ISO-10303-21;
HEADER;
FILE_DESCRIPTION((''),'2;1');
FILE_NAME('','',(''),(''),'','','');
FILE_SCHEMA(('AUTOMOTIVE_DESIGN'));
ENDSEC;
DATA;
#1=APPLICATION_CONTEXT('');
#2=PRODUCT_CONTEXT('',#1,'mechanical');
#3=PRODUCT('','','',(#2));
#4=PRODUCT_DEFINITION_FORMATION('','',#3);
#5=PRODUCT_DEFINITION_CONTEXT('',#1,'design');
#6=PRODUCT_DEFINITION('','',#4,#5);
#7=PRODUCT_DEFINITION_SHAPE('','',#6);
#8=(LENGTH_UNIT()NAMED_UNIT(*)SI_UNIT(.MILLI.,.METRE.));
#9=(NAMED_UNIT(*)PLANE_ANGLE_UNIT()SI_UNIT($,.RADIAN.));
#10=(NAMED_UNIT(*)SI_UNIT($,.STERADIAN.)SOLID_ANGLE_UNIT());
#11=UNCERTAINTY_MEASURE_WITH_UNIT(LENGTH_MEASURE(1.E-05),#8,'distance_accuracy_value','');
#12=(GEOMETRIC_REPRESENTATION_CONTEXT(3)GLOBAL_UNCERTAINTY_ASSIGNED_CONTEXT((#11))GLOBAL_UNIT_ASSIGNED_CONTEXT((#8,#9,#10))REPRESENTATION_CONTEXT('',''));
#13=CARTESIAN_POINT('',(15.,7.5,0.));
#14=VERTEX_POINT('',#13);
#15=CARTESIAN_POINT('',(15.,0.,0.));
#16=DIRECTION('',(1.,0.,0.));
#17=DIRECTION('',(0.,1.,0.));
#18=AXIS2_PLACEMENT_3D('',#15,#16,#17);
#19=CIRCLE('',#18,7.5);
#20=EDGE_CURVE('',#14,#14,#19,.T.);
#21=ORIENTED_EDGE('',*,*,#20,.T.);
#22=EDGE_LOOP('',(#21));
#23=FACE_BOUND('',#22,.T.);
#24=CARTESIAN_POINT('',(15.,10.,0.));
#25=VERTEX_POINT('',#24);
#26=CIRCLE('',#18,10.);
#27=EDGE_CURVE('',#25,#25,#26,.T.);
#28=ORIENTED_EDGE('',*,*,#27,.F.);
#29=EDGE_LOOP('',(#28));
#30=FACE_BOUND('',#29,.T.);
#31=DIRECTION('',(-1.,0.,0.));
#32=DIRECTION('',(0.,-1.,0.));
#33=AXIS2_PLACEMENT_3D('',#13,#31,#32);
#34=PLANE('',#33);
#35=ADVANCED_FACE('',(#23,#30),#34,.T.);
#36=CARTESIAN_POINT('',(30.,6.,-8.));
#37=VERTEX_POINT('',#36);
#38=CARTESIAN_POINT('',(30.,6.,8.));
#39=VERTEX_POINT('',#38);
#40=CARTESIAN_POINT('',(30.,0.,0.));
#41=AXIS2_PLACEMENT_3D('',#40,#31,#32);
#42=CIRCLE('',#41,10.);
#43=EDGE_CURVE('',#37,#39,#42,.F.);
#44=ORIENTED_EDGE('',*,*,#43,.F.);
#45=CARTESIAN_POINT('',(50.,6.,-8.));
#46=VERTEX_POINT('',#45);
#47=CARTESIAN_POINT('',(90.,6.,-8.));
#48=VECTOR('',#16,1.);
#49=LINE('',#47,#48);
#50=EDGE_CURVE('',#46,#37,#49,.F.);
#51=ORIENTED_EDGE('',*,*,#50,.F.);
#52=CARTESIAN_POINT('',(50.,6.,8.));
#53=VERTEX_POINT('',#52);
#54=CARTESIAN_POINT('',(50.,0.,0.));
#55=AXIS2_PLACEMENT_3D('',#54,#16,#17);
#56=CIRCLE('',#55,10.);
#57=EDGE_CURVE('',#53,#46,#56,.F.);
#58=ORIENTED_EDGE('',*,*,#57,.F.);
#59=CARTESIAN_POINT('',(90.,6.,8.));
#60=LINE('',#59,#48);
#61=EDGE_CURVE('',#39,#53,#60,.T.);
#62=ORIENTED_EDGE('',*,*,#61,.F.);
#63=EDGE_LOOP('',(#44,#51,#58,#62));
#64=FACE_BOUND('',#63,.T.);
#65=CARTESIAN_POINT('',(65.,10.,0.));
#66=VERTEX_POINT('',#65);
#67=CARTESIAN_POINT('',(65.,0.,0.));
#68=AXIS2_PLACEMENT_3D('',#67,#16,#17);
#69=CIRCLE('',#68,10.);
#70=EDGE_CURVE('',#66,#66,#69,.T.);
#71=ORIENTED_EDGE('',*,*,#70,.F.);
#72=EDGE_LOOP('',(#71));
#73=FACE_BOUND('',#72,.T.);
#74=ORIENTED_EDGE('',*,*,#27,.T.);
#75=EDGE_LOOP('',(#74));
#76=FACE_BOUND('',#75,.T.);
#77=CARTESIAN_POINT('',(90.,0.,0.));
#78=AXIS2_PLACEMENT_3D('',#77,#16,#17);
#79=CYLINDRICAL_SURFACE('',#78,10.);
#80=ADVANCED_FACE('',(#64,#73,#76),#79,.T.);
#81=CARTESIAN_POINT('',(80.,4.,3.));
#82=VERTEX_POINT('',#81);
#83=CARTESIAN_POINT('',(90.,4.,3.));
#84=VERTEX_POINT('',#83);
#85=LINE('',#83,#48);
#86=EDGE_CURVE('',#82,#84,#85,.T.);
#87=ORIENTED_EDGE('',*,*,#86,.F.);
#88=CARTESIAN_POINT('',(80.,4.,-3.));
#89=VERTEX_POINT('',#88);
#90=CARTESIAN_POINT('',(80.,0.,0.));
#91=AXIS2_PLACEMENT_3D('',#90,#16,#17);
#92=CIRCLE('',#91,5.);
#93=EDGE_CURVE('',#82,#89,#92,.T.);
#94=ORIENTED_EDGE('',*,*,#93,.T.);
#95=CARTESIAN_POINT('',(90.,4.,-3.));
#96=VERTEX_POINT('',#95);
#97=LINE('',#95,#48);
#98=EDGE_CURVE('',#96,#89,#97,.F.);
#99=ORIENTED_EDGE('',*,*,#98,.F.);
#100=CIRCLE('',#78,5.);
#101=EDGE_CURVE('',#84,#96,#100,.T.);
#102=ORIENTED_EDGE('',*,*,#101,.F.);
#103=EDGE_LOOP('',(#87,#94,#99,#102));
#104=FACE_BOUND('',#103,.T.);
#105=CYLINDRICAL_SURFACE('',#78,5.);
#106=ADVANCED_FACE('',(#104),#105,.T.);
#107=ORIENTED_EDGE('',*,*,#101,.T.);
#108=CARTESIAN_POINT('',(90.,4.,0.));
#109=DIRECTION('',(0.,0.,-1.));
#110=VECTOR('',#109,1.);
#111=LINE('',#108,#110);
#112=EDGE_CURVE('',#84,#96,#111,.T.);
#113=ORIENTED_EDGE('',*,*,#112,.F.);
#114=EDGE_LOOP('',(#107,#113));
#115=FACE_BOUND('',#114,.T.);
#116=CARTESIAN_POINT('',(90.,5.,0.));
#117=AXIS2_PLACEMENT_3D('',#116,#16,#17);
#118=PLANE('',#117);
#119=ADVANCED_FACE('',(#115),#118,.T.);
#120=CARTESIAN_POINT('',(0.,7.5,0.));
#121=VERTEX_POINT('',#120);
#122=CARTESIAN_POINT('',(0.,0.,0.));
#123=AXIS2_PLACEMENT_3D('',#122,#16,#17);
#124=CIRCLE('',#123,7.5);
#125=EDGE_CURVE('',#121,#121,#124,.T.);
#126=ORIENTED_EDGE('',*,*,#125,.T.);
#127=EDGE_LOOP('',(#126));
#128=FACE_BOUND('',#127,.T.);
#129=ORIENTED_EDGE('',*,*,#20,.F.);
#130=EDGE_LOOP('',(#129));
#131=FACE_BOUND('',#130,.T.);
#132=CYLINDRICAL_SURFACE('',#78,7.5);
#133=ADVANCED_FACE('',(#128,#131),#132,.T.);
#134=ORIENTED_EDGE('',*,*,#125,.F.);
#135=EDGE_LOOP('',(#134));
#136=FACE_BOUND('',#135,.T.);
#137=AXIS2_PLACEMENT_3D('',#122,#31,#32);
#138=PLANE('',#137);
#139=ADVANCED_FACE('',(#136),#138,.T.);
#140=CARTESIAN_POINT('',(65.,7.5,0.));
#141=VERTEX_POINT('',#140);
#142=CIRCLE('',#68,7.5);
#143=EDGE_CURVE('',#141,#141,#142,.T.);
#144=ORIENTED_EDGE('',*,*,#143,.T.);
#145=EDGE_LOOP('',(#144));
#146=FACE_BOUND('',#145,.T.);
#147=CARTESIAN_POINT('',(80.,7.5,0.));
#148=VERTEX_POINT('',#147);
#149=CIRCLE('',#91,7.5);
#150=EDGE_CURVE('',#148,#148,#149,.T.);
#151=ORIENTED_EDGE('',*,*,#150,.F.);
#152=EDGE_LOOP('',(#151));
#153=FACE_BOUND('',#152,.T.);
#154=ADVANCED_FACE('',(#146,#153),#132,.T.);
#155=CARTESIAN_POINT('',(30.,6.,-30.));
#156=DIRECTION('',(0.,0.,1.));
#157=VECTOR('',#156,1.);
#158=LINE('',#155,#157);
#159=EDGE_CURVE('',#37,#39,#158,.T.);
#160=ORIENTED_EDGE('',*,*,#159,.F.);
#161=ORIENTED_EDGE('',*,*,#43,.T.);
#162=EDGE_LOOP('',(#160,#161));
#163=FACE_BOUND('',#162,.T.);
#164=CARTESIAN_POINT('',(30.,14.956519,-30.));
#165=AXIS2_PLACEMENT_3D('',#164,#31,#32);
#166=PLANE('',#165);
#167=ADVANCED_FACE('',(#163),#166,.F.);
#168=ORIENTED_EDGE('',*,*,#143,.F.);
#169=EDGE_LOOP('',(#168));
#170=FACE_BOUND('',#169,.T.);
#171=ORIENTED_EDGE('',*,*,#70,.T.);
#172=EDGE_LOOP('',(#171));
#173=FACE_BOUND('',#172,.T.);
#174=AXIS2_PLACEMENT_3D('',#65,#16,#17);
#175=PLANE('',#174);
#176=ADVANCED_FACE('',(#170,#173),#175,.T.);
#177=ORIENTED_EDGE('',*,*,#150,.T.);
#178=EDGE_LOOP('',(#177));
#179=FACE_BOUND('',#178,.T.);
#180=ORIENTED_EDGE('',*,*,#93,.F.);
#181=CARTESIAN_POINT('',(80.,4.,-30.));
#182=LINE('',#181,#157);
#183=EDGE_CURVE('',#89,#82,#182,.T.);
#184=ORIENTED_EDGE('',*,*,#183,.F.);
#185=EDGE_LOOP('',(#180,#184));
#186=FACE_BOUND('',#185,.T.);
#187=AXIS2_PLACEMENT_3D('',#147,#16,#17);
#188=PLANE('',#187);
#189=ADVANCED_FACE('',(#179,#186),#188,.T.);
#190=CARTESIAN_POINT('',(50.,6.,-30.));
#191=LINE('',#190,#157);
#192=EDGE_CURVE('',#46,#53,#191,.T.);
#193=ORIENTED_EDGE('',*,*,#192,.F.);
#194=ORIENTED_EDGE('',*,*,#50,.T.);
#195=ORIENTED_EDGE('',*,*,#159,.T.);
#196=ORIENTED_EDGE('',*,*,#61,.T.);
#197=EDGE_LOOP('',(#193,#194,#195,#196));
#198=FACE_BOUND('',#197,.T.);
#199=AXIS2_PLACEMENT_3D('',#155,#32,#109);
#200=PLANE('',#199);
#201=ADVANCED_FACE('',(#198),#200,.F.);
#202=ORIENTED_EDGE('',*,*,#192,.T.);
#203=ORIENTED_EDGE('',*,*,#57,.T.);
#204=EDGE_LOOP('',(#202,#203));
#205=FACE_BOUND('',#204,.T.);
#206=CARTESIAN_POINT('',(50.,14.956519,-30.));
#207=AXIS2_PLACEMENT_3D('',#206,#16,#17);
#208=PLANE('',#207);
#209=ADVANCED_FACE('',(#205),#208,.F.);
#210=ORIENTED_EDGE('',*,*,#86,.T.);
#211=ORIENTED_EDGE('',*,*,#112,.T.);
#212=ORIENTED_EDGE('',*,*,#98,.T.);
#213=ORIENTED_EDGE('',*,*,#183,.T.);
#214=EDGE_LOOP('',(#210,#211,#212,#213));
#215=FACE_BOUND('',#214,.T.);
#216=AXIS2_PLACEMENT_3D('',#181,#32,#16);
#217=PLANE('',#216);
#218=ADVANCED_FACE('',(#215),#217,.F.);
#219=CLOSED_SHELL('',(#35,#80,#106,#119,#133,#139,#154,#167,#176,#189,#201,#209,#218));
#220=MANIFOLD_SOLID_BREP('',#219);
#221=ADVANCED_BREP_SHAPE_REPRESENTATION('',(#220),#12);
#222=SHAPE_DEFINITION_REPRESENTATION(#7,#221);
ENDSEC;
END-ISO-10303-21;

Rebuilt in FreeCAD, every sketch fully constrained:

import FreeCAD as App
import Part
import Sketcher

V = App.Vector

doc = App.newDocument("Part")
body = doc.addObject("PartDesign::Body", "Body")

# Sketch on XY plane
sketch1 = doc.addObject("Sketcher::SketchObject", "Sketch")
body.addObject(sketch1)
sketch1.AttachmentSupport = (doc.XY_Plane, [""])
sketch1.MapMode = "FlatFace"
sketch1.addGeometry(Part.LineSegment(V(0, 7.5, 0), V(0, 0, 0)), False)
sketch1.addGeometry(Part.LineSegment(V(0, 0, 0), V(90, 0, 0)), False)
sketch1.addGeometry(Part.LineSegment(V(90, 0, 0), V(90, 5, 0)), False)
sketch1.addGeometry(Part.LineSegment(V(90, 5, 0), V(80, 5, 0)), False)
sketch1.addGeometry(Part.LineSegment(V(80, 5, 0), V(80, 7.5, 0)), False)
sketch1.addGeometry(Part.LineSegment(V(80, 7.5, 0), V(65, 7.5, 0)), False)
sketch1.addGeometry(Part.LineSegment(V(65, 7.5, 0), V(65, 10, 0)), False)
sketch1.addGeometry(Part.LineSegment(V(65, 10, 0), V(15, 10, 0)), False)
sketch1.addGeometry(Part.LineSegment(V(15, 10, 0), V(15, 7.5, 0)), False)
sketch1.addGeometry(Part.LineSegment(V(15, 7.5, 0), V(0, 7.5, 0)), False)
sketch1.addConstraint(Sketcher.Constraint("Coincident", 0, 2, 1, 1))
sketch1.addConstraint(Sketcher.Constraint("Coincident", 1, 2, 2, 1))
sketch1.addConstraint(Sketcher.Constraint("Coincident", 2, 2, 3, 1))
sketch1.addConstraint(Sketcher.Constraint("Coincident", 3, 2, 4, 1))
sketch1.addConstraint(Sketcher.Constraint("Coincident", 4, 2, 5, 1))
sketch1.addConstraint(Sketcher.Constraint("Coincident", 5, 2, 6, 1))
sketch1.addConstraint(Sketcher.Constraint("Coincident", 6, 2, 7, 1))
sketch1.addConstraint(Sketcher.Constraint("Coincident", 7, 2, 8, 1))
sketch1.addConstraint(Sketcher.Constraint("Coincident", 8, 2, 9, 1))
sketch1.addConstraint(Sketcher.Constraint("Coincident", 9, 2, 0, 1))
sketch1.addConstraint(Sketcher.Constraint("Vertical", 0))
sketch1.addConstraint(Sketcher.Constraint("Horizontal", 1))
sketch1.addConstraint(Sketcher.Constraint("Vertical", 2))
sketch1.addConstraint(Sketcher.Constraint("Horizontal", 3))
sketch1.addConstraint(Sketcher.Constraint("Vertical", 4))
sketch1.addConstraint(Sketcher.Constraint("Horizontal", 5))
sketch1.addConstraint(Sketcher.Constraint("Vertical", 6))
sketch1.addConstraint(Sketcher.Constraint("Horizontal", 7))
sketch1.addConstraint(Sketcher.Constraint("Vertical", 8))
sketch1.addConstraint(Sketcher.Constraint("Horizontal", 9))
sketch1.addConstraint(Sketcher.Constraint("Coincident", 0, 2, -1, 1))
sketch1.addConstraint(Sketcher.Constraint("Horizontal", 5, 2, 8, 2))
sketch1.addConstraint(Sketcher.Constraint("Equal", 5, 9))
sketch1.addConstraint(Sketcher.Constraint("Equal", 4, 6))
sketch1.addConstraint(Sketcher.Constraint("DistanceX", 1, 1, 1, 2, 90.0))
sketch1.addConstraint(Sketcher.Constraint("DistanceX", 3, 2, 3, 1, 10.0))
sketch1.addConstraint(Sketcher.Constraint("DistanceX", 5, 2, 5, 1, 15.0))
sketch1.addConstraint(Sketcher.Constraint("DistanceY", 2, 1, 2, 2, 5.0))
sketch1.addConstraint(Sketcher.Constraint("DistanceY", 0, 2, 0, 1, 7.5))
revolution = doc.addObject("PartDesign::Revolution", "Revolution")
body.addObject(revolution)
revolution.Profile = sketch1
revolution.ReferenceAxis = (sketch1, ["H_Axis"])
revolution.Angle = 360

# Sketch on XY plane
sketch2 = doc.addObject("Sketcher::SketchObject", "Sketch001")
body.addObject(sketch2)
sketch2.AttachmentSupport = (doc.XY_Plane, [""])
sketch2.MapMode = "FlatFace"
sketch2.addGeometry(Part.LineSegment(V(30, 15, 0), V(30, 6, 0)), False)
sketch2.addGeometry(Part.LineSegment(V(30, 6, 0), V(50, 6, 0)), False)
sketch2.addGeometry(Part.LineSegment(V(50, 6, 0), V(50, 15, 0)), False)
sketch2.addGeometry(Part.LineSegment(V(50, 15, 0), V(30, 15, 0)), False)
sketch2.addGeometry(Part.LineSegment(V(80, 11, 0), V(80, 4, 0)), False)
sketch2.addGeometry(Part.LineSegment(V(80, 4, 0), V(96, 4, 0)), False)
sketch2.addGeometry(Part.LineSegment(V(96, 4, 0), V(96, 11, 0)), False)
sketch2.addGeometry(Part.LineSegment(V(96, 11, 0), V(80, 11, 0)), False)
sketch2.addConstraint(Sketcher.Constraint("Coincident", 0, 2, 1, 1))
sketch2.addConstraint(Sketcher.Constraint("Coincident", 1, 2, 2, 1))
sketch2.addConstraint(Sketcher.Constraint("Coincident", 2, 2, 3, 1))
sketch2.addConstraint(Sketcher.Constraint("Coincident", 3, 2, 0, 1))
sketch2.addConstraint(Sketcher.Constraint("Coincident", 4, 2, 5, 1))
sketch2.addConstraint(Sketcher.Constraint("Coincident", 5, 2, 6, 1))
sketch2.addConstraint(Sketcher.Constraint("Coincident", 6, 2, 7, 1))
sketch2.addConstraint(Sketcher.Constraint("Coincident", 7, 2, 4, 1))
sketch2.addConstraint(Sketcher.Constraint("Vertical", 0))
sketch2.addConstraint(Sketcher.Constraint("Horizontal", 1))
sketch2.addConstraint(Sketcher.Constraint("Vertical", 2))
sketch2.addConstraint(Sketcher.Constraint("Horizontal", 3))
sketch2.addConstraint(Sketcher.Constraint("Vertical", 4))
sketch2.addConstraint(Sketcher.Constraint("Horizontal", 5))
sketch2.addConstraint(Sketcher.Constraint("Vertical", 6))
sketch2.addConstraint(Sketcher.Constraint("Horizontal", 7))
sketch2.addConstraint(Sketcher.Constraint("DistanceX", 1, 1, 1, 2, 20.0))
sketch2.addConstraint(Sketcher.Constraint("DistanceX", -1, 1, 0, 2, 30.0))
sketch2.addConstraint(Sketcher.Constraint("DistanceY", -1, 1, 0, 2, 6.0))
sketch2.addConstraint(Sketcher.Constraint("DistanceX", -1, 1, 4, 2, 80.0))
sketch2.addConstraint(Sketcher.Constraint("DistanceY", -1, 1, 4, 2, 4.0))
sketch2.addConstraint(Sketcher.Constraint("DistanceY", 0, 2, 0, 1, 8.956519))
sketch2.addConstraint(Sketcher.Constraint("DistanceY", 4, 2, 4, 1, 7.025572))
sketch2.addConstraint(Sketcher.Constraint("DistanceX", 5, 1, 5, 2, 16.233108))
pocket1 = doc.addObject("PartDesign::Pocket", "Pocket")
body.addObject(pocket1)
pocket1.Profile = sketch2
pocket1.Length = 60
pocket1.Midplane = True

doc.recompute()
